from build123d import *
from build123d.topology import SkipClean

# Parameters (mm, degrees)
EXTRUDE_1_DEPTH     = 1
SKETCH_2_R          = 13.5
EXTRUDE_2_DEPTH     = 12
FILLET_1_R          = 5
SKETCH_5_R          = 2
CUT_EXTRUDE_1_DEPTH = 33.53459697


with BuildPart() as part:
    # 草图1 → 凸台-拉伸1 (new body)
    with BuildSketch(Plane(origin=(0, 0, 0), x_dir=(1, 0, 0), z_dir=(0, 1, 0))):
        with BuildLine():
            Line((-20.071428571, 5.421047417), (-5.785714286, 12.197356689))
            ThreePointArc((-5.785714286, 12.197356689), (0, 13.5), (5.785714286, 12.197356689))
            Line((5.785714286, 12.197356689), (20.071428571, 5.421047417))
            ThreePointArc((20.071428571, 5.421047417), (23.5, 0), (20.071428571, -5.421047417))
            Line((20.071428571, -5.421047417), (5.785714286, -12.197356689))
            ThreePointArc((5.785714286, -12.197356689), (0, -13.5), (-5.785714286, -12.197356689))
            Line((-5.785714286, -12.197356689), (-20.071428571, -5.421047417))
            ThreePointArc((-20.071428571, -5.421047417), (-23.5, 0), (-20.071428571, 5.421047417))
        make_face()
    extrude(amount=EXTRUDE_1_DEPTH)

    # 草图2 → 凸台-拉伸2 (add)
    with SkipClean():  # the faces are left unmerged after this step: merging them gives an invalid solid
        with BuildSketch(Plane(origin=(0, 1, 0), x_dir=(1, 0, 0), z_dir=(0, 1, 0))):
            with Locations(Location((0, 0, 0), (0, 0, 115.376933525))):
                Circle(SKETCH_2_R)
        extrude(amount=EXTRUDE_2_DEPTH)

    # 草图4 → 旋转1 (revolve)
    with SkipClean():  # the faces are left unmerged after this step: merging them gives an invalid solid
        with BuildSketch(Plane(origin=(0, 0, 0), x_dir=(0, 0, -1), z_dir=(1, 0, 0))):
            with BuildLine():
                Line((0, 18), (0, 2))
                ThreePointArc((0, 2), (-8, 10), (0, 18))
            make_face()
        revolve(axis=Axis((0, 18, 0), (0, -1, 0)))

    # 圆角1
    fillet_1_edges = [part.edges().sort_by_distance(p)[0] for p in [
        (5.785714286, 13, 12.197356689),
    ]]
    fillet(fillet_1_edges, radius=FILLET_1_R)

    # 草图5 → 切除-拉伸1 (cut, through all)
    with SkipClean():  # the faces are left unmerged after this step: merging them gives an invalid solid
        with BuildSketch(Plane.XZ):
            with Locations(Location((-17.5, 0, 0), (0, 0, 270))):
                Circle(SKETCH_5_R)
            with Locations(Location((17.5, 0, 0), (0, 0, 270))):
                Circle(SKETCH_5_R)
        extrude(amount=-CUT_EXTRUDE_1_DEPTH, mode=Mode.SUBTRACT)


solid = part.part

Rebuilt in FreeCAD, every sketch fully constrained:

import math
import FreeCAD as App
import Part
import Sketcher

V = App.Vector


def edges_at(feature, points):
    """Names of the edges that pass closest to the given points."""
    edges = feature.Shape.Edges
    near = lambda p: min(range(len(edges)), key=lambda i: edges[i].distToShape(Part.Vertex(*p))[0])
    return sorted({f"Edge{near(p) + 1}" for p in points})

doc = App.newDocument("Part")
body = doc.addObject("PartDesign::Body", "Body")

sketch1 = body.newObject("Sketcher::SketchObject", "Sketch")
sketch1.AttachmentSupport = (doc.getObject("XZ_Plane"), [""])
sketch1.MapMode = "FlatFace"
sketch1.addGeometry(Part.LineSegment(V(-6, -12, 0), V(-20, -5, 0)), False)
sketch1.addGeometry(Part.ArcOfCircle(Part.Circle(V(-18, 0, 0), V(0, 0, 1), 6), math.radians(115), math.radians(245)), False)
sketch1.addGeometry(Part.LineSegment(V(-20, 5, 0), V(-6, 12, 0)), False)
sketch1.addGeometry(Part.ArcOfCircle(Part.Circle(V(0, 0, 0), V(0, 0, 1), 13), math.radians(65), math.radians(115)), False)
sketch1.addGeometry(Part.LineSegment(V(6, 12, 0), V(20, 5, 0)), False)
sketch1.addGeometry(Part.ArcOfCircle(Part.Circle(V(18, 0, 0), V(0, 0, 1), 6), math.radians(-65), math.radians(65)), False)
sketch1.addGeometry(Part.LineSegment(V(20, -5, 0), V(6, -12, 0)), False)
sketch1.addGeometry(Part.ArcOfCircle(Part.Circle(V(0, 0, 0), V(0, 0, 1), 13), math.radians(-115), math.radians(-65)), False)
sketch1.addConstraint(Sketcher.Constraint("Tangent", 0, 2, 1, 2))
sketch1.addConstraint(Sketcher.Constraint("Tangent", 1, 1, 2, 1))
sketch1.addConstraint(Sketcher.Constraint("Tangent", 2, 2, 3, 2))
sketch1.addConstraint(Sketcher.Constraint("Tangent", 3, 1, 4, 1))
sketch1.addConstraint(Sketcher.Constraint("Tangent", 4, 2, 5, 2))
sketch1.addConstraint(Sketcher.Constraint("Tangent", 5, 1, 6, 1))
sketch1.addConstraint(Sketcher.Constraint("Tangent", 6, 2, 7, 2))
sketch1.addConstraint(Sketcher.Constraint("Tangent", 7, 1, 0, 1))
sketch1.addConstraint(Sketcher.Constraint("Coincident", 3, 3, -1, 1))
sketch1.addConstraint(Sketcher.Constraint("Coincident", 7, 3, -1, 1))
sketch1.addConstraint(Sketcher.Constraint("Equal", 1, 5))
sketch1.addConstraint(Sketcher.Constraint("Equal", 3, 7))
sketch1.addConstraint(Sketcher.Constraint("Symmetric", 1, 3, 5, 3, -1, 1))
sketch1.addConstraint(Sketcher.Constraint("PointOnObject", 1, 3, -1))
sketch1.addConstraint(Sketcher.Constraint("Radius", 1, 6.0))
sketch1.addConstraint(Sketcher.Constraint("Radius", 3, 13.5))
sketch1.addConstraint(Sketcher.Constraint("DistanceX", 1, 3, 5, 3, 35.0))
pad1 = body.newObject("PartDesign::Pad", "Pad")
pad1.Profile = sketch1
pad1.Length = 1
pad1.Reversed = True

sketch2 = body.newObject("Sketcher::SketchObject", "Sketch001")
sketch2.AttachmentSupport = (doc.getObject("XZ_Plane"), [""])
sketch2.MapMode = "FlatFace"
sketch2.AttachmentOffset = App.Placement(V(0, 0, -1), App.Rotation())
sketch2.addGeometry(Part.Circle(V(0, 0, 0), V(0, 0, 1), 14), False)
sketch2.addConstraint(Sketcher.Constraint("Coincident", 0, 3, -1, 1))
sketch2.addConstraint(Sketcher.Constraint("Diameter", 0, 27.0))
pad2 = body.newObject("PartDesign::Pad", "Pad001")
pad2.Profile = sketch2
pad2.Length = 12
pad2.Reversed = True

sketch3 = body.newObject("Sketcher::SketchObject", "Sketch002")
sketch3.AttachmentSupport = (doc.getObject("YZ_Plane"), [""])
sketch3.MapMode = "FlatFace"
sketch3.addGeometry(Part.LineSegment(V(2, 0, 0), V(18, 0, 0)), False)
sketch3.addGeometry(Part.ArcOfCircle(Part.Circle(V(10, 0, 0), V(0, 0, 1), 8), math.radians(0), math.radians(180)), False)
sketch3.addConstraint(Sketcher.Constraint("Coincident", 0, 1, 1, 2))
sketch3.addConstraint(Sketcher.Constraint("Coincident", 1, 1, 0, 2))
sketch3.addConstraint(Sketcher.Constraint("Horizontal", 0))
sketch3.addConstraint(Sketcher.Constraint("PointOnObject", 1, 3, -1))
sketch3.addConstraint(Sketcher.Constraint("PointOnObject", 0, 1, -1))
sketch3.addConstraint(Sketcher.Constraint("Radius", 1, 8.0))
sketch3.addConstraint(Sketcher.Constraint("DistanceX", -1, 1, 1, 3, 10.0))
revolution = body.newObject("PartDesign::Revolution", "Revolution")
revolution.Profile = sketch3
revolution.ReferenceAxis = (sketch3, ["H_Axis"])
revolution.Angle = 360
doc.recompute()

fillet = body.newObject("PartDesign::Fillet", "Fillet")
fillet.Base = (revolution, edges_at(revolution, [(5.786, 13, 12.197)]))
fillet.Radius = 5

sketch4 = body.newObject("Sketcher::SketchObject", "Sketch003")
sketch4.AttachmentSupport = (doc.getObject("XZ_Plane"), [""])
sketch4.MapMode = "FlatFace"
sketch4.addGeometry(Part.Circle(V(-17.5, 0, 0), V(0, 0, 1), 2), False)
sketch4.addGeometry(Part.Circle(V(17.5, 0, 0), V(0, 0, 1), 2), False)
sketch4.addConstraint(Sketcher.Constraint("Equal", 0, 1))
sketch4.addConstraint(Sketcher.Constraint("Symmetric", 0, 3, 1, 3, -1, 1))
sketch4.addConstraint(Sketcher.Constraint("PointOnObject", 0, 3, -1))
sketch4.addConstraint(Sketcher.Constraint("Diameter", 0, 4.0))
sketch4.addConstraint(Sketcher.Constraint("DistanceX", 0, 3, 1, 3, 35.0))
pocket1 = body.newObject("PartDesign::Pocket", "Pocket")
pocket1.Profile = sketch4
pocket1.Type = "ThroughAll"

doc.recompute()
